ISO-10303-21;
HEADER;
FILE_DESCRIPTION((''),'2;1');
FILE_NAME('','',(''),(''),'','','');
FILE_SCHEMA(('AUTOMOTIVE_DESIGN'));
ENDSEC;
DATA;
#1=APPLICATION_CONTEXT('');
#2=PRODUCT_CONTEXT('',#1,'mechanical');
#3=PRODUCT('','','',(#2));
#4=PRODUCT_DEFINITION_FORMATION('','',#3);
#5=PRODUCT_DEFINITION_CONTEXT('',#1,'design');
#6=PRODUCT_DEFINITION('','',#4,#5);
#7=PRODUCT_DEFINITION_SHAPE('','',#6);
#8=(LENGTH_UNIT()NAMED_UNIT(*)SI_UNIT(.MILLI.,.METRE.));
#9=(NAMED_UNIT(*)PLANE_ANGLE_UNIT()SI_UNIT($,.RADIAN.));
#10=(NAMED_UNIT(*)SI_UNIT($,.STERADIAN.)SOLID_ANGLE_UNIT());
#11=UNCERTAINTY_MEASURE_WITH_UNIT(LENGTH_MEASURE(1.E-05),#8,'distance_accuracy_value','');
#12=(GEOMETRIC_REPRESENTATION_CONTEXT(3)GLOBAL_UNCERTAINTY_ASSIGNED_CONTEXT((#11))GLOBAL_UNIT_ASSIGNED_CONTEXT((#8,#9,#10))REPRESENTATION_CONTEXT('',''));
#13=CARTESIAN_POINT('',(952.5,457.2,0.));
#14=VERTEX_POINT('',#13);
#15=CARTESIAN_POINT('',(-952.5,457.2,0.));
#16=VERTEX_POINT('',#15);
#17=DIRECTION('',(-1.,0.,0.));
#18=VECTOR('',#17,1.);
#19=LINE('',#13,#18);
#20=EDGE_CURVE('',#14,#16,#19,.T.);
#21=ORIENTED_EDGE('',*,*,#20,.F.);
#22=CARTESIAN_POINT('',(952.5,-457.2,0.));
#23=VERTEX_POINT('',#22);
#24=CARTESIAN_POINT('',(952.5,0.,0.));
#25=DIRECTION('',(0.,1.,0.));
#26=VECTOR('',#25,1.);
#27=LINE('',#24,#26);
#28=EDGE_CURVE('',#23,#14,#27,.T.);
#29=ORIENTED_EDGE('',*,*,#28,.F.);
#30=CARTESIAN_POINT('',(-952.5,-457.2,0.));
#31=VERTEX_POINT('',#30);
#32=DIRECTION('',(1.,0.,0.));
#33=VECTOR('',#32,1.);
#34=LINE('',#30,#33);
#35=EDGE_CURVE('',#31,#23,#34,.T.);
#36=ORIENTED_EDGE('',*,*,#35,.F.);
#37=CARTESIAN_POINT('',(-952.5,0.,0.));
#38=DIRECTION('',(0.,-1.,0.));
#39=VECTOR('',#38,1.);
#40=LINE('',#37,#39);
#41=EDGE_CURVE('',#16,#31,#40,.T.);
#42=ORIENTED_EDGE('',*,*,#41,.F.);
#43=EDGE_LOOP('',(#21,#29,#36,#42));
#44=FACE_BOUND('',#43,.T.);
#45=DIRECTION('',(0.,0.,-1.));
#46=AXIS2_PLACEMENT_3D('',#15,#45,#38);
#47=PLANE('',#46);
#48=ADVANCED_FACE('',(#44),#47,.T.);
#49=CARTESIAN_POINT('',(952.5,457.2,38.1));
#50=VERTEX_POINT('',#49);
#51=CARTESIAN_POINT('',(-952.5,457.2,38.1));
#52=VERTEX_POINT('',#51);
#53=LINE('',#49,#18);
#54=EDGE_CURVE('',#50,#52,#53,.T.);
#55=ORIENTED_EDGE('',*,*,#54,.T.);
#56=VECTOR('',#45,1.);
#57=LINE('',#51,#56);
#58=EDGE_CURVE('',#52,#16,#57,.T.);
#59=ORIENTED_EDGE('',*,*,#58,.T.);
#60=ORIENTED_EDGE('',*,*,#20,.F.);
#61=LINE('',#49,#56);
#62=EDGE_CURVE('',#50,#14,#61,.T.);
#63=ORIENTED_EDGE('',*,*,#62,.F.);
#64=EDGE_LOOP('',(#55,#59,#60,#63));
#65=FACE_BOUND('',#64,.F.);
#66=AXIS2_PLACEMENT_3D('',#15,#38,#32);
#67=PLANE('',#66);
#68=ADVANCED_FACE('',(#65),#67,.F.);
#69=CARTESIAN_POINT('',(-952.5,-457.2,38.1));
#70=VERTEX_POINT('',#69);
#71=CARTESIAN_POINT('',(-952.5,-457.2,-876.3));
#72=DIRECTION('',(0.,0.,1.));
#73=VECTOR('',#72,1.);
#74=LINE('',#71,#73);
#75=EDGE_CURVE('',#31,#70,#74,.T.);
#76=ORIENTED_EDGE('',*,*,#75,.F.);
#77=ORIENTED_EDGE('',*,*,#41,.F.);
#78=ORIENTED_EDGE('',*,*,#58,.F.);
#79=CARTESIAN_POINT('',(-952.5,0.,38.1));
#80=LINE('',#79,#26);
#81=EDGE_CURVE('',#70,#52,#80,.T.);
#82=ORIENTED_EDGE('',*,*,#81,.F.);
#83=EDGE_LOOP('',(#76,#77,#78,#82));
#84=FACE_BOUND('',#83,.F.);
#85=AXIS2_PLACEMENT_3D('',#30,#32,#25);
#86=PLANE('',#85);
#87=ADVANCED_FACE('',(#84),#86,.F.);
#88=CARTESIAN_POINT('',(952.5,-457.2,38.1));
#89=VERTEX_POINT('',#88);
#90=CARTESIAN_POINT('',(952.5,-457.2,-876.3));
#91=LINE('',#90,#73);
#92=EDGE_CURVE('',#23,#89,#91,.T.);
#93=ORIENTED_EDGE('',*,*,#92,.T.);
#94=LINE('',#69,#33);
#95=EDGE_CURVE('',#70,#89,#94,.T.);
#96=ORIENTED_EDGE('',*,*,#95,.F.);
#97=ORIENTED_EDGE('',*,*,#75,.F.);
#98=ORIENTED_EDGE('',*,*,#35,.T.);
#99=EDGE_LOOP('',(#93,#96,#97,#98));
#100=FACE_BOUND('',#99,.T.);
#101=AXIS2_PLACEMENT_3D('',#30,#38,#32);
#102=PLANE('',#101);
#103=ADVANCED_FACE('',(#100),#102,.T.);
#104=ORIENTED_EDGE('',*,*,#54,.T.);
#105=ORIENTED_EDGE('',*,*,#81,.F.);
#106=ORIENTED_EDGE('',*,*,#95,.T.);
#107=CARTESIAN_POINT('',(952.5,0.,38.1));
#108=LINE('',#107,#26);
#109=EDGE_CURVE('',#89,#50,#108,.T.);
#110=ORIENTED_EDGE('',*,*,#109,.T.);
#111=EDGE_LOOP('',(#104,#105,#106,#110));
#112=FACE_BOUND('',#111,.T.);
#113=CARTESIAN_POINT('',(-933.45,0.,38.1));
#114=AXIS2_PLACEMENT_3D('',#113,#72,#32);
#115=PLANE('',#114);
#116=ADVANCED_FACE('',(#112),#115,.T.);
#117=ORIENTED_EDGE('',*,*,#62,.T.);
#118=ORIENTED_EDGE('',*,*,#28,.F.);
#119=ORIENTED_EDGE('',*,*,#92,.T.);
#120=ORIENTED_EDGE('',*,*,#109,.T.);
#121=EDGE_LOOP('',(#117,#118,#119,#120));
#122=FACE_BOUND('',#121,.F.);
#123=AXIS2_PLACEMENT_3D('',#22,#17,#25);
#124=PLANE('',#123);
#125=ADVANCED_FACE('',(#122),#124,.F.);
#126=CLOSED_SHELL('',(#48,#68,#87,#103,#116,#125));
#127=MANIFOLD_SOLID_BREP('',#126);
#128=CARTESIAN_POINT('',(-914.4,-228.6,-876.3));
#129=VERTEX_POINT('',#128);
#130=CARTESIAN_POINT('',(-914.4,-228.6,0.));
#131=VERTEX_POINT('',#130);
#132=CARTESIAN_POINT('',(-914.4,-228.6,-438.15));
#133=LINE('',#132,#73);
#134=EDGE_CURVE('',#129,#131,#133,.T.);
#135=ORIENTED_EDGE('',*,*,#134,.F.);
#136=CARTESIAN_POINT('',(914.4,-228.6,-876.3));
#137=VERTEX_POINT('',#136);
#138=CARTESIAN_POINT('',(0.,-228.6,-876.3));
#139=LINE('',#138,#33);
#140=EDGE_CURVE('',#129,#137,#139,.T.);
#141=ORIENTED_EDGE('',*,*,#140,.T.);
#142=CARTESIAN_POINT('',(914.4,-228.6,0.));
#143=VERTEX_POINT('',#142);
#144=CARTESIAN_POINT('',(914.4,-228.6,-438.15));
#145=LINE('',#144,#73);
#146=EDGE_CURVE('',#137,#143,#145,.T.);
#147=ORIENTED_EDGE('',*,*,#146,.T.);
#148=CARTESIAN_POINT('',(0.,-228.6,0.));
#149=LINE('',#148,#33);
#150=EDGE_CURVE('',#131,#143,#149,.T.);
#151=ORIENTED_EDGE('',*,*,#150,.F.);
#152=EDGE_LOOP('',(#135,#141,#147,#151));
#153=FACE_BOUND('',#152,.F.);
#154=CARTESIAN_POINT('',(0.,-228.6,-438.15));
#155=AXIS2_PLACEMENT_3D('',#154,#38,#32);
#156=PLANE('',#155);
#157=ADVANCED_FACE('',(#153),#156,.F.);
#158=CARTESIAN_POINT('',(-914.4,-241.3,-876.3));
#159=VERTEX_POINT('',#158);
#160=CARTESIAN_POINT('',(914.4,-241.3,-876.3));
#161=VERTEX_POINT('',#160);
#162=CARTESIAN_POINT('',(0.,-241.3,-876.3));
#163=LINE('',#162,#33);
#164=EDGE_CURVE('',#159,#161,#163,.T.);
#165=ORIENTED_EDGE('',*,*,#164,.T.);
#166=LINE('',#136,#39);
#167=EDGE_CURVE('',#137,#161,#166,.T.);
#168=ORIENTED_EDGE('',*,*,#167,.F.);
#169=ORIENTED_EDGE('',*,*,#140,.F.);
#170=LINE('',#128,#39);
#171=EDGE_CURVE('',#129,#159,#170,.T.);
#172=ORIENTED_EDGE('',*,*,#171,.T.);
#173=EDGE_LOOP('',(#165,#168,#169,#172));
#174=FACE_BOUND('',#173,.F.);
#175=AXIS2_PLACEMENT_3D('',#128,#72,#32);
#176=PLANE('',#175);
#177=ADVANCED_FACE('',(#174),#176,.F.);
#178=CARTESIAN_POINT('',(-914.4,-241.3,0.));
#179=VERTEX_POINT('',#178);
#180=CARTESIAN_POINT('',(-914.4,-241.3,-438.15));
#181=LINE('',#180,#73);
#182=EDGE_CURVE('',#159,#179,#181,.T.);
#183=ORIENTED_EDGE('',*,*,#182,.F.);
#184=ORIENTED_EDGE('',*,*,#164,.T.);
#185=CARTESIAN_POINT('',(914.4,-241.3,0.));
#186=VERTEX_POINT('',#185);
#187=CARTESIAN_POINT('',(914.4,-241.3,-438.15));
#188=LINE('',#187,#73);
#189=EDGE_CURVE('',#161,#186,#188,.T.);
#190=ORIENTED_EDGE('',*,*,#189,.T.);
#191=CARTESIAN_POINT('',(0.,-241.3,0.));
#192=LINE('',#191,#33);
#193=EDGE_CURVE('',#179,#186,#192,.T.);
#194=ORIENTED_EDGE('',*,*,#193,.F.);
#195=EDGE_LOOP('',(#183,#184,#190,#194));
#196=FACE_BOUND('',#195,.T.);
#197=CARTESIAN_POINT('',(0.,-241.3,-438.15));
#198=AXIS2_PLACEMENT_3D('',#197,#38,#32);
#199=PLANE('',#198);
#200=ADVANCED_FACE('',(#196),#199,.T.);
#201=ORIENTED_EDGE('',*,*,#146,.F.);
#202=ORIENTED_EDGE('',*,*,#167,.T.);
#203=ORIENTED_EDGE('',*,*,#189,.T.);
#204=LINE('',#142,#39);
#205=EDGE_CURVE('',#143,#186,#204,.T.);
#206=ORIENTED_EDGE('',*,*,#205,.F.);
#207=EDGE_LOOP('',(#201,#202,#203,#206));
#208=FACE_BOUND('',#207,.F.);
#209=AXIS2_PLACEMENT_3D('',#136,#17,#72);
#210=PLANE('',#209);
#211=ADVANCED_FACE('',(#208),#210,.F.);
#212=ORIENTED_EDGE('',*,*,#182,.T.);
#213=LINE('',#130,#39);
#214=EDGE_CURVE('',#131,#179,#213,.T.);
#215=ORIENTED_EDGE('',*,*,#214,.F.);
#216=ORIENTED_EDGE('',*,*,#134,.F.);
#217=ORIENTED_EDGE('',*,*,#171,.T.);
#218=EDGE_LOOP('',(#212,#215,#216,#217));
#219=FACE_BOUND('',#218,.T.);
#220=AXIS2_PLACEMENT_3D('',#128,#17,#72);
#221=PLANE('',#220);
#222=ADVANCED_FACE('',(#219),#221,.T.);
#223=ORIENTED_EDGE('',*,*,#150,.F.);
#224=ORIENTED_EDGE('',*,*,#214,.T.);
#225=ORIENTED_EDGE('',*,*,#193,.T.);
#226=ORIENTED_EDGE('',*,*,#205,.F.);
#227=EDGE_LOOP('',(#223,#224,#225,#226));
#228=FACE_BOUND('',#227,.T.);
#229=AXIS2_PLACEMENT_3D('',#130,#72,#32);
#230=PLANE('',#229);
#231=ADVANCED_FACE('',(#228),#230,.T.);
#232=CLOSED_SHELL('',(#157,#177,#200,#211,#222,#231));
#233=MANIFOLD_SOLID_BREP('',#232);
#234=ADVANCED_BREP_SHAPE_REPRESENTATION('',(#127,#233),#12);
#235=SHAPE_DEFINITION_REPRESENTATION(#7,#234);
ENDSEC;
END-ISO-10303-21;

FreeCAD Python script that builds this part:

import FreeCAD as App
import Part
import Sketcher
Q = App.Units.Quantity


def add_polygon(sketch, points):
    """Adds a closed chain of lines whose ends are joined by coincident constraints."""
    first, n = sketch.GeometryCount, len(points)
    for a, b in zip(points, points[1:] + points[:1]):
        sketch.addGeometry(Part.LineSegment(App.Vector(*a, 0), App.Vector(*b, 0)), False)
    for i in range(n):
        sketch.addConstraint(Sketcher.Constraint("Coincident", first + i, 2, first + (i + 1) % n, 1))

doc = App.newDocument("Part")
params = doc.addObject("Spreadsheet::Sheet", "Params")
for row, (alias, value) in enumerate([
    ("sketch1_width", "75 in"),
    ("sketch1_height", "36 in"),
    ("pad1_length", "1.5 in"),
    ("sketch2_height", "36 in"),
    ("sketch2_width", "1.5 in"),
    ("pad2_length", "34.5 in"),
    ("sketch3_width", "36 in"),
    ("sketch3_height", "34.5 in"),
    ("pocket1_length", "1.5 in"),
    ("sketch4_width", "36 in"),
    ("sketch4_height", "34.5 in"),
    ("pocket2_length", "1.5 in"),
    ("sketch5_width", "72 in"),
    ("sketch5_height", "34.5 in"),
    ("pad3_length", "0.5 in"),
], start=1):
    params.set(f"A{row}", alias)
    params.set(f"B{row}", "=" + value)
    params.setAlias(f"B{row}", alias)

body = doc.addObject("PartDesign::Body", "Body")

sketch1 = body.newObject("Sketcher::SketchObject", "Sketch")
sketch1.AttachmentSupport = (doc.getObject("XY_Plane"), [""])
sketch1.MapMode = "FlatFace"
add_polygon(sketch1, [(-952, 457), (-952, -457), (952, -457), (952, 457)])
sketch1.addConstraint([
    Sketcher.Constraint("Vertical", 0),
    Sketcher.Constraint("Horizontal", 1),
    Sketcher.Constraint("Vertical", 2),
    Sketcher.Constraint("Horizontal", 3),
    Sketcher.Constraint("Symmetric", 0, 2, 2, 2, -1, 1),
    Sketcher.Constraint("DistanceX", 1, 1, 1, 2, Q("75 in")),
    Sketcher.Constraint("DistanceY", 0, 2, 0, 1, Q("36 in")),
])
sketch1.setExpression("Constraints[9]", "Params.sketch1_width")
sketch1.setExpression("Constraints[10]", "Params.sketch1_height")
pad1 = body.newObject("PartDesign::Pad", "Pad")
pad1.Profile = sketch1
pad1.setExpression("Length", "Params.pad1_length")

sketch2 = body.newObject("Sketcher::SketchObject", "Sketch001")
sketch2.AttachmentSupport = (doc.getObject("XY_Plane"), [""])
sketch2.MapMode = "FlatFace"
add_polygon(sketch2, [(-952, 457), (-952, -457), (-914, -457), (-914, 457)])
add_polygon(sketch2, [(914, 457), (914, -457), (952, -457), (952, 457)])
sketch2.addConstraint([
    Sketcher.Constraint("Vertical", 0),
    Sketcher.Constraint("Horizontal", 1),
    Sketcher.Constraint("Vertical", 2),
    Sketcher.Constraint("Horizontal", 3),
    Sketcher.Constraint("Vertical", 4),
    Sketcher.Constraint("Horizontal", 5),
    Sketcher.Constraint("Vertical", 6),
    Sketcher.Constraint("Horizontal", 7),
    Sketcher.Constraint("Symmetric", 2, 2, 4, 2, -1, 1),
    Sketcher.Constraint("Symmetric", 0, 2, 6, 2, -1, 1),
    Sketcher.Constraint("Horizontal", 1, 2, 4, 2),
    Sketcher.Constraint("DistanceY", 0, 2, 0, 1, Q("36 in")),
    Sketcher.Constraint("DistanceX", 1, 1, 1, 2, Q("1.5 in")),
    Sketcher.Constraint("DistanceX", 1, 2, -1, 1, Q("36 in")),
])
sketch2.setExpression("Constraints[19]", "Params.sketch2_height")
sketch2.setExpression("Constraints[20]", "Params.sketch2_width")
pad2 = body.newObject("PartDesign::Pad", "Pad001")
pad2.Profile = sketch2
pad2.setExpression("Length", "Params.pad2_length")
pad2.Reversed = True

sketch3 = body.newObject("Sketcher::SketchObject", "Sketch002")
sketch3.AttachmentSupport = (doc.getObject("YZ_Plane"), [""])
sketch3.MapMode = "FlatFace"
sketch3.AttachmentOffset = App.Placement(App.Vector(0, 0, 37.5 * 25.4), App.Rotation())
add_polygon(sketch3, [(-457, 0), (-457, -876), (457, -876), (457, 0)])
sketch3.addConstraint([
    Sketcher.Constraint("Vertical", 0),
    Sketcher.Constraint("Horizontal", 1),
    Sketcher.Constraint("Vertical", 2),
    Sketcher.Constraint("Horizontal", 3),
    Sketcher.Constraint("Symmetric", 2, 2, 3, 2, -1, 1),
    Sketcher.Constraint("DistanceX", 1, 1, 1, 2, Q("36 in")),
    Sketcher.Constraint("DistanceY", 0, 2, 0, 1, Q("34.5 in")),
])
sketch3.setExpression("Constraints[9]", "Params.sketch3_width")
sketch3.setExpression("Constraints[10]", "Params.sketch3_height")
pocket1 = body.newObject("PartDesign::Pocket", "Pocket")
pocket1.Profile = sketch3
pocket1.setExpression("Length", "Params.pocket1_length")

sketch4 = body.newObject("Sketcher::SketchObject", "Sketch003")
sketch4.AttachmentSupport = (doc.getObject("YZ_Plane"), [""])
sketch4.MapMode = "FlatFace"
sketch4.AttachmentOffset = App.Placement(App.Vector(0, 0, -37.5 * 25.4), App.Rotation())
add_polygon(sketch4, [(457, 0), (457, -876), (-457, -876), (-457, 0)])
sketch4.addConstraint([
    Sketcher.Constraint("Vertical", 0),
    Sketcher.Constraint("Horizontal", 1),
    Sketcher.Constraint("Vertical", 2),
    Sketcher.Constraint("Horizontal", 3),
    Sketcher.Constraint("Symmetric", 2, 2, 3, 2, -1, 1),
    Sketcher.Constraint("DistanceX", 1, 2, 1, 1, Q("36 in")),
    Sketcher.Constraint("DistanceY", 0, 2, 0, 1, Q("34.5 in")),
])
sketch4.setExpression("Constraints[9]", "Params.sketch4_width")
sketch4.setExpression("Constraints[10]", "Params.sketch4_height")
pocket2 = body.newObject("PartDesign::Pocket", "Pocket001")
pocket2.Profile = sketch4
pocket2.setExpression("Length", "Params.pocket2_length")
pocket2.Reversed = True
body2 = doc.addObject("PartDesign::Body", "Body001")

sketch5 = body2.newObject("Sketcher::SketchObject", "Sketch004")
sketch5.AttachmentSupport = (doc.getObject("XZ_Plane001"), [""])
sketch5.MapMode = "FlatFace"
sketch5.AttachmentOffset = App.Placement(App.Vector(0, 0, 9 * 25.4), App.Rotation())
add_polygon(sketch5, [(-914, 0), (-914, -876), (914, -876), (914, 0)])
sketch5.addConstraint([
    Sketcher.Constraint("Vertical", 0),
    Sketcher.Constraint("Horizontal", 1),
    Sketcher.Constraint("Vertical", 2),
    Sketcher.Constraint("Horizontal", 3),
    Sketcher.Constraint("Symmetric", 2, 2, 3, 2, -1, 1),
    Sketcher.Constraint("DistanceX", 1, 1, 1, 2, Q("72 in")),
    Sketcher.Constraint("DistanceY", 0, 2, 0, 1, Q("34.5 in")),
])
sketch5.setExpression("Constraints[9]", "Params.sketch5_width")
sketch5.setExpression("Constraints[10]", "Params.sketch5_height")
pad3 = body2.newObject("PartDesign::Pad", "Pad002")
pad3.Profile = sketch5
pad3.setExpression("Length", "Params.pad3_length")

doc.recompute()
